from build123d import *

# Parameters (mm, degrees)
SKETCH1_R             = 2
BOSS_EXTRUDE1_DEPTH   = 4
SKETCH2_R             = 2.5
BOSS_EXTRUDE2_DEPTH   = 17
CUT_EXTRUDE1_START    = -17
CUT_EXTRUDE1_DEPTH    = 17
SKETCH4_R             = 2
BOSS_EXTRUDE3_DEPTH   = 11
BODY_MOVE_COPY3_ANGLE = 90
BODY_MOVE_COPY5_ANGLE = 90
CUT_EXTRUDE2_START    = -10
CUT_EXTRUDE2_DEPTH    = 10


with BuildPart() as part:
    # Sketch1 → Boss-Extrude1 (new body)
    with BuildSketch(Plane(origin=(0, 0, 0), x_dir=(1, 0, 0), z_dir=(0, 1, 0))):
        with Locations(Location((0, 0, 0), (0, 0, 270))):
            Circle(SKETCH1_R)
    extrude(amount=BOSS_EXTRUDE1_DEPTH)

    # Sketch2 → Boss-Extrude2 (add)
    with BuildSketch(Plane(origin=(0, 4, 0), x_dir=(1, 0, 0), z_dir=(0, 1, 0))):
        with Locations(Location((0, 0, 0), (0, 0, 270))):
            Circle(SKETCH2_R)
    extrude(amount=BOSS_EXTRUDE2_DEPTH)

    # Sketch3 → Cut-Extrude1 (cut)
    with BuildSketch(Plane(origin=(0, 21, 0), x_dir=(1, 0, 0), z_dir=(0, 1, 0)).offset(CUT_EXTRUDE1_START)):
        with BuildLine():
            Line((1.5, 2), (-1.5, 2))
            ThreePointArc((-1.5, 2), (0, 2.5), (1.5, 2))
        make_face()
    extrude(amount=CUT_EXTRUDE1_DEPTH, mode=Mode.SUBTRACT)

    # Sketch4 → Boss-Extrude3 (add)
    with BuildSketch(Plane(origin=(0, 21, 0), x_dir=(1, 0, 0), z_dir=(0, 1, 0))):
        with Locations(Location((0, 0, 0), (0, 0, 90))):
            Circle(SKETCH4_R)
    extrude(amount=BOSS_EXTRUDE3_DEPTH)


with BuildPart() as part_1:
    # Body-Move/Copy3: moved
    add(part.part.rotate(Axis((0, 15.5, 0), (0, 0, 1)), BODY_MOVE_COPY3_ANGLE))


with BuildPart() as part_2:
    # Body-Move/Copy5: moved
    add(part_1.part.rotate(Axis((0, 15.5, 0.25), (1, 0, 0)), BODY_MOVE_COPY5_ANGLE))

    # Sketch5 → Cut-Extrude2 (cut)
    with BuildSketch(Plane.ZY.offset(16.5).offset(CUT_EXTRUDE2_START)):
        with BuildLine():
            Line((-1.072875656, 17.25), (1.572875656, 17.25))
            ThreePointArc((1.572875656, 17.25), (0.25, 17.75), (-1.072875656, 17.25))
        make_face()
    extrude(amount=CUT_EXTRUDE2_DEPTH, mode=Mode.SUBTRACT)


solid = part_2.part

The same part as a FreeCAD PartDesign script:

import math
import FreeCAD as App
import Part
import Sketcher

doc = App.newDocument("Part")
body = doc.addObject("PartDesign::Body", "Body")

sketch1 = body.newObject("Sketcher::SketchObject", "Sketch")
sketch1.AttachmentSupport = (doc.getObject("XZ_Plane"), [""])
sketch1.MapMode = "FlatFace"
sketch1.addGeometry(Part.Circle(App.Vector(0, 0, 0), App.Vector(0, 0, 1), 2), False)
sketch1.addConstraint([
    Sketcher.Constraint("Coincident", 0, 3, -1, 1),
    Sketcher.Constraint("Diameter", 0, 4.0),
])
pad1 = body.newObject("PartDesign::Pad", "Pad")
pad1.Profile = sketch1
pad1.Length = 4
pad1.Reversed = True

sketch2 = body.newObject("Sketcher::SketchObject", "Sketch001")
sketch2.AttachmentSupport = (doc.getObject("XZ_Plane"), [""])
sketch2.MapMode = "FlatFace"
sketch2.AttachmentOffset = App.Placement(App.Vector(0, 0, -4), App.Rotation())
sketch2.addGeometry(Part.Circle(App.Vector(0, 0, 0), App.Vector(0, 0, 1), 2.5), False)
sketch2.addConstraint([
    Sketcher.Constraint("Coincident", 0, 3, -1, 1),
    Sketcher.Constraint("Diameter", 0, 5.0),
])
pad2 = body.newObject("PartDesign::Pad", "Pad001")
pad2.Profile = sketch2
pad2.Length = 17
pad2.Reversed = True

sketch3 = body.newObject("Sketcher::SketchObject", "Sketch002")
sketch3.AttachmentSupport = (doc.getObject("XZ_Plane"), [""])
sketch3.MapMode = "FlatFace"
sketch3.AttachmentOffset = App.Placement(App.Vector(0, 0, -4), App.Rotation())
sketch3.addGeometry([
    Part.LineSegment(App.Vector(-1.5, -2, 0), App.Vector(1.5, -2, 0)),
    Part.ArcOfCircle(Part.Circle(App.Vector(0, 0, 0), App.Vector(0, 0, 1), 2.5), math.radians(-127), math.radians(-53)),
], False)
sketch3.addConstraint([
    Sketcher.Constraint("Coincident", 0, 1, 1, 1),
    Sketcher.Constraint("Coincident", 1, 2, 0, 2),
    Sketcher.Constraint("Horizontal", 0),
    Sketcher.Constraint("Coincident", 1, 3, -1, 1),
    Sketcher.Constraint("Radius", 1, 2.5),
    Sketcher.Constraint("DistanceX", 0, 1, 0, 2, 3.0),
])
pocket1 = body.newObject("PartDesign::Pocket", "Pocket")
pocket1.Profile = sketch3
pocket1.Length = 17

sketch4 = body.newObject("Sketcher::SketchObject", "Sketch003")
sketch4.AttachmentSupport = (doc.getObject("XZ_Plane"), [""])
sketch4.MapMode = "FlatFace"
sketch4.AttachmentOffset = App.Placement(App.Vector(0, 0, -21), App.Rotation())
sketch4.addGeometry(Part.Circle(App.Vector(0, 0, 0), App.Vector(0, 0, 1), 2), False)
sketch4.addConstraint([
    Sketcher.Constraint("Coincident", 0, 3, -1, 1),
    Sketcher.Constraint("Diameter", 0, 4.0),
])
pad3 = body.newObject("PartDesign::Pad", "Pad002")
pad3.Profile = sketch4
pad3.Length = 11
pad3.Reversed = True
body2 = doc.addObject("PartDesign::Body", "Body001")
doc.recompute()

body.Placement = App.Placement(App.Vector(15.5, 15.5, 0), App.Rotation(App.Vector(0, 0, 1), 90))
boolean = body2.newObject("PartDesign::Boolean", "Boolean")
boolean.Type = "Fuse"
boolean.addObjects([body])
body3 = doc.addObject("PartDesign::Body", "Body002")
doc.recompute()

body2.Placement = App.Placement(App.Vector(0, 15.75, -15.25), App.Rotation(App.Vector(1, 0, 0), 90))
boolean2 = body3.newObject("PartDesign::Boolean", "Boolean001")
boolean2.Type = "Fuse"
boolean2.addObjects([body2])

sketch5 = body3.newObject("Sketcher::SketchObject", "Sketch004")
sketch5.AttachmentSupport = (doc.getObject("YZ_Plane002"), [""])
sketch5.MapMode = "FlatFace"
sketch5.AttachmentOffset = App.Placement(App.Vector(0, 0, -6.5), App.Rotation())
sketch5.addGeometry([
    Part.LineSegment(App.Vector(17.2, -1.1, 0), App.Vector(17.2, 1.6, 0)),
    Part.ArcOfCircle(Part.Circle(App.Vector(15.7, 0.2, 0), App.Vector(0, 0, 1), 2), math.radians(-41), math.radians(41)),
], False)
sketch5.addConstraint([
    Sketcher.Constraint("Coincident", 0, 1, 1, 1),
    Sketcher.Constraint("Coincident", 1, 2, 0, 2),
    Sketcher.Constraint("Vertical", 0),
    Sketcher.Constraint("Radius", 1, 2.0),
    Sketcher.Constraint("DistanceX", 1, 3, 0, 1, 1.5),
    Sketcher.Constraint("DistanceX", -1, 1, 1, 3, 15.75),
    Sketcher.Constraint("DistanceY", -1, 1, 1, 3, 0.25),
])
pocket2 = body3.newObject("PartDesign::Pocket", "Pocket001")
pocket2.Profile = sketch5
pocket2.Length = 10

doc.recompute()
